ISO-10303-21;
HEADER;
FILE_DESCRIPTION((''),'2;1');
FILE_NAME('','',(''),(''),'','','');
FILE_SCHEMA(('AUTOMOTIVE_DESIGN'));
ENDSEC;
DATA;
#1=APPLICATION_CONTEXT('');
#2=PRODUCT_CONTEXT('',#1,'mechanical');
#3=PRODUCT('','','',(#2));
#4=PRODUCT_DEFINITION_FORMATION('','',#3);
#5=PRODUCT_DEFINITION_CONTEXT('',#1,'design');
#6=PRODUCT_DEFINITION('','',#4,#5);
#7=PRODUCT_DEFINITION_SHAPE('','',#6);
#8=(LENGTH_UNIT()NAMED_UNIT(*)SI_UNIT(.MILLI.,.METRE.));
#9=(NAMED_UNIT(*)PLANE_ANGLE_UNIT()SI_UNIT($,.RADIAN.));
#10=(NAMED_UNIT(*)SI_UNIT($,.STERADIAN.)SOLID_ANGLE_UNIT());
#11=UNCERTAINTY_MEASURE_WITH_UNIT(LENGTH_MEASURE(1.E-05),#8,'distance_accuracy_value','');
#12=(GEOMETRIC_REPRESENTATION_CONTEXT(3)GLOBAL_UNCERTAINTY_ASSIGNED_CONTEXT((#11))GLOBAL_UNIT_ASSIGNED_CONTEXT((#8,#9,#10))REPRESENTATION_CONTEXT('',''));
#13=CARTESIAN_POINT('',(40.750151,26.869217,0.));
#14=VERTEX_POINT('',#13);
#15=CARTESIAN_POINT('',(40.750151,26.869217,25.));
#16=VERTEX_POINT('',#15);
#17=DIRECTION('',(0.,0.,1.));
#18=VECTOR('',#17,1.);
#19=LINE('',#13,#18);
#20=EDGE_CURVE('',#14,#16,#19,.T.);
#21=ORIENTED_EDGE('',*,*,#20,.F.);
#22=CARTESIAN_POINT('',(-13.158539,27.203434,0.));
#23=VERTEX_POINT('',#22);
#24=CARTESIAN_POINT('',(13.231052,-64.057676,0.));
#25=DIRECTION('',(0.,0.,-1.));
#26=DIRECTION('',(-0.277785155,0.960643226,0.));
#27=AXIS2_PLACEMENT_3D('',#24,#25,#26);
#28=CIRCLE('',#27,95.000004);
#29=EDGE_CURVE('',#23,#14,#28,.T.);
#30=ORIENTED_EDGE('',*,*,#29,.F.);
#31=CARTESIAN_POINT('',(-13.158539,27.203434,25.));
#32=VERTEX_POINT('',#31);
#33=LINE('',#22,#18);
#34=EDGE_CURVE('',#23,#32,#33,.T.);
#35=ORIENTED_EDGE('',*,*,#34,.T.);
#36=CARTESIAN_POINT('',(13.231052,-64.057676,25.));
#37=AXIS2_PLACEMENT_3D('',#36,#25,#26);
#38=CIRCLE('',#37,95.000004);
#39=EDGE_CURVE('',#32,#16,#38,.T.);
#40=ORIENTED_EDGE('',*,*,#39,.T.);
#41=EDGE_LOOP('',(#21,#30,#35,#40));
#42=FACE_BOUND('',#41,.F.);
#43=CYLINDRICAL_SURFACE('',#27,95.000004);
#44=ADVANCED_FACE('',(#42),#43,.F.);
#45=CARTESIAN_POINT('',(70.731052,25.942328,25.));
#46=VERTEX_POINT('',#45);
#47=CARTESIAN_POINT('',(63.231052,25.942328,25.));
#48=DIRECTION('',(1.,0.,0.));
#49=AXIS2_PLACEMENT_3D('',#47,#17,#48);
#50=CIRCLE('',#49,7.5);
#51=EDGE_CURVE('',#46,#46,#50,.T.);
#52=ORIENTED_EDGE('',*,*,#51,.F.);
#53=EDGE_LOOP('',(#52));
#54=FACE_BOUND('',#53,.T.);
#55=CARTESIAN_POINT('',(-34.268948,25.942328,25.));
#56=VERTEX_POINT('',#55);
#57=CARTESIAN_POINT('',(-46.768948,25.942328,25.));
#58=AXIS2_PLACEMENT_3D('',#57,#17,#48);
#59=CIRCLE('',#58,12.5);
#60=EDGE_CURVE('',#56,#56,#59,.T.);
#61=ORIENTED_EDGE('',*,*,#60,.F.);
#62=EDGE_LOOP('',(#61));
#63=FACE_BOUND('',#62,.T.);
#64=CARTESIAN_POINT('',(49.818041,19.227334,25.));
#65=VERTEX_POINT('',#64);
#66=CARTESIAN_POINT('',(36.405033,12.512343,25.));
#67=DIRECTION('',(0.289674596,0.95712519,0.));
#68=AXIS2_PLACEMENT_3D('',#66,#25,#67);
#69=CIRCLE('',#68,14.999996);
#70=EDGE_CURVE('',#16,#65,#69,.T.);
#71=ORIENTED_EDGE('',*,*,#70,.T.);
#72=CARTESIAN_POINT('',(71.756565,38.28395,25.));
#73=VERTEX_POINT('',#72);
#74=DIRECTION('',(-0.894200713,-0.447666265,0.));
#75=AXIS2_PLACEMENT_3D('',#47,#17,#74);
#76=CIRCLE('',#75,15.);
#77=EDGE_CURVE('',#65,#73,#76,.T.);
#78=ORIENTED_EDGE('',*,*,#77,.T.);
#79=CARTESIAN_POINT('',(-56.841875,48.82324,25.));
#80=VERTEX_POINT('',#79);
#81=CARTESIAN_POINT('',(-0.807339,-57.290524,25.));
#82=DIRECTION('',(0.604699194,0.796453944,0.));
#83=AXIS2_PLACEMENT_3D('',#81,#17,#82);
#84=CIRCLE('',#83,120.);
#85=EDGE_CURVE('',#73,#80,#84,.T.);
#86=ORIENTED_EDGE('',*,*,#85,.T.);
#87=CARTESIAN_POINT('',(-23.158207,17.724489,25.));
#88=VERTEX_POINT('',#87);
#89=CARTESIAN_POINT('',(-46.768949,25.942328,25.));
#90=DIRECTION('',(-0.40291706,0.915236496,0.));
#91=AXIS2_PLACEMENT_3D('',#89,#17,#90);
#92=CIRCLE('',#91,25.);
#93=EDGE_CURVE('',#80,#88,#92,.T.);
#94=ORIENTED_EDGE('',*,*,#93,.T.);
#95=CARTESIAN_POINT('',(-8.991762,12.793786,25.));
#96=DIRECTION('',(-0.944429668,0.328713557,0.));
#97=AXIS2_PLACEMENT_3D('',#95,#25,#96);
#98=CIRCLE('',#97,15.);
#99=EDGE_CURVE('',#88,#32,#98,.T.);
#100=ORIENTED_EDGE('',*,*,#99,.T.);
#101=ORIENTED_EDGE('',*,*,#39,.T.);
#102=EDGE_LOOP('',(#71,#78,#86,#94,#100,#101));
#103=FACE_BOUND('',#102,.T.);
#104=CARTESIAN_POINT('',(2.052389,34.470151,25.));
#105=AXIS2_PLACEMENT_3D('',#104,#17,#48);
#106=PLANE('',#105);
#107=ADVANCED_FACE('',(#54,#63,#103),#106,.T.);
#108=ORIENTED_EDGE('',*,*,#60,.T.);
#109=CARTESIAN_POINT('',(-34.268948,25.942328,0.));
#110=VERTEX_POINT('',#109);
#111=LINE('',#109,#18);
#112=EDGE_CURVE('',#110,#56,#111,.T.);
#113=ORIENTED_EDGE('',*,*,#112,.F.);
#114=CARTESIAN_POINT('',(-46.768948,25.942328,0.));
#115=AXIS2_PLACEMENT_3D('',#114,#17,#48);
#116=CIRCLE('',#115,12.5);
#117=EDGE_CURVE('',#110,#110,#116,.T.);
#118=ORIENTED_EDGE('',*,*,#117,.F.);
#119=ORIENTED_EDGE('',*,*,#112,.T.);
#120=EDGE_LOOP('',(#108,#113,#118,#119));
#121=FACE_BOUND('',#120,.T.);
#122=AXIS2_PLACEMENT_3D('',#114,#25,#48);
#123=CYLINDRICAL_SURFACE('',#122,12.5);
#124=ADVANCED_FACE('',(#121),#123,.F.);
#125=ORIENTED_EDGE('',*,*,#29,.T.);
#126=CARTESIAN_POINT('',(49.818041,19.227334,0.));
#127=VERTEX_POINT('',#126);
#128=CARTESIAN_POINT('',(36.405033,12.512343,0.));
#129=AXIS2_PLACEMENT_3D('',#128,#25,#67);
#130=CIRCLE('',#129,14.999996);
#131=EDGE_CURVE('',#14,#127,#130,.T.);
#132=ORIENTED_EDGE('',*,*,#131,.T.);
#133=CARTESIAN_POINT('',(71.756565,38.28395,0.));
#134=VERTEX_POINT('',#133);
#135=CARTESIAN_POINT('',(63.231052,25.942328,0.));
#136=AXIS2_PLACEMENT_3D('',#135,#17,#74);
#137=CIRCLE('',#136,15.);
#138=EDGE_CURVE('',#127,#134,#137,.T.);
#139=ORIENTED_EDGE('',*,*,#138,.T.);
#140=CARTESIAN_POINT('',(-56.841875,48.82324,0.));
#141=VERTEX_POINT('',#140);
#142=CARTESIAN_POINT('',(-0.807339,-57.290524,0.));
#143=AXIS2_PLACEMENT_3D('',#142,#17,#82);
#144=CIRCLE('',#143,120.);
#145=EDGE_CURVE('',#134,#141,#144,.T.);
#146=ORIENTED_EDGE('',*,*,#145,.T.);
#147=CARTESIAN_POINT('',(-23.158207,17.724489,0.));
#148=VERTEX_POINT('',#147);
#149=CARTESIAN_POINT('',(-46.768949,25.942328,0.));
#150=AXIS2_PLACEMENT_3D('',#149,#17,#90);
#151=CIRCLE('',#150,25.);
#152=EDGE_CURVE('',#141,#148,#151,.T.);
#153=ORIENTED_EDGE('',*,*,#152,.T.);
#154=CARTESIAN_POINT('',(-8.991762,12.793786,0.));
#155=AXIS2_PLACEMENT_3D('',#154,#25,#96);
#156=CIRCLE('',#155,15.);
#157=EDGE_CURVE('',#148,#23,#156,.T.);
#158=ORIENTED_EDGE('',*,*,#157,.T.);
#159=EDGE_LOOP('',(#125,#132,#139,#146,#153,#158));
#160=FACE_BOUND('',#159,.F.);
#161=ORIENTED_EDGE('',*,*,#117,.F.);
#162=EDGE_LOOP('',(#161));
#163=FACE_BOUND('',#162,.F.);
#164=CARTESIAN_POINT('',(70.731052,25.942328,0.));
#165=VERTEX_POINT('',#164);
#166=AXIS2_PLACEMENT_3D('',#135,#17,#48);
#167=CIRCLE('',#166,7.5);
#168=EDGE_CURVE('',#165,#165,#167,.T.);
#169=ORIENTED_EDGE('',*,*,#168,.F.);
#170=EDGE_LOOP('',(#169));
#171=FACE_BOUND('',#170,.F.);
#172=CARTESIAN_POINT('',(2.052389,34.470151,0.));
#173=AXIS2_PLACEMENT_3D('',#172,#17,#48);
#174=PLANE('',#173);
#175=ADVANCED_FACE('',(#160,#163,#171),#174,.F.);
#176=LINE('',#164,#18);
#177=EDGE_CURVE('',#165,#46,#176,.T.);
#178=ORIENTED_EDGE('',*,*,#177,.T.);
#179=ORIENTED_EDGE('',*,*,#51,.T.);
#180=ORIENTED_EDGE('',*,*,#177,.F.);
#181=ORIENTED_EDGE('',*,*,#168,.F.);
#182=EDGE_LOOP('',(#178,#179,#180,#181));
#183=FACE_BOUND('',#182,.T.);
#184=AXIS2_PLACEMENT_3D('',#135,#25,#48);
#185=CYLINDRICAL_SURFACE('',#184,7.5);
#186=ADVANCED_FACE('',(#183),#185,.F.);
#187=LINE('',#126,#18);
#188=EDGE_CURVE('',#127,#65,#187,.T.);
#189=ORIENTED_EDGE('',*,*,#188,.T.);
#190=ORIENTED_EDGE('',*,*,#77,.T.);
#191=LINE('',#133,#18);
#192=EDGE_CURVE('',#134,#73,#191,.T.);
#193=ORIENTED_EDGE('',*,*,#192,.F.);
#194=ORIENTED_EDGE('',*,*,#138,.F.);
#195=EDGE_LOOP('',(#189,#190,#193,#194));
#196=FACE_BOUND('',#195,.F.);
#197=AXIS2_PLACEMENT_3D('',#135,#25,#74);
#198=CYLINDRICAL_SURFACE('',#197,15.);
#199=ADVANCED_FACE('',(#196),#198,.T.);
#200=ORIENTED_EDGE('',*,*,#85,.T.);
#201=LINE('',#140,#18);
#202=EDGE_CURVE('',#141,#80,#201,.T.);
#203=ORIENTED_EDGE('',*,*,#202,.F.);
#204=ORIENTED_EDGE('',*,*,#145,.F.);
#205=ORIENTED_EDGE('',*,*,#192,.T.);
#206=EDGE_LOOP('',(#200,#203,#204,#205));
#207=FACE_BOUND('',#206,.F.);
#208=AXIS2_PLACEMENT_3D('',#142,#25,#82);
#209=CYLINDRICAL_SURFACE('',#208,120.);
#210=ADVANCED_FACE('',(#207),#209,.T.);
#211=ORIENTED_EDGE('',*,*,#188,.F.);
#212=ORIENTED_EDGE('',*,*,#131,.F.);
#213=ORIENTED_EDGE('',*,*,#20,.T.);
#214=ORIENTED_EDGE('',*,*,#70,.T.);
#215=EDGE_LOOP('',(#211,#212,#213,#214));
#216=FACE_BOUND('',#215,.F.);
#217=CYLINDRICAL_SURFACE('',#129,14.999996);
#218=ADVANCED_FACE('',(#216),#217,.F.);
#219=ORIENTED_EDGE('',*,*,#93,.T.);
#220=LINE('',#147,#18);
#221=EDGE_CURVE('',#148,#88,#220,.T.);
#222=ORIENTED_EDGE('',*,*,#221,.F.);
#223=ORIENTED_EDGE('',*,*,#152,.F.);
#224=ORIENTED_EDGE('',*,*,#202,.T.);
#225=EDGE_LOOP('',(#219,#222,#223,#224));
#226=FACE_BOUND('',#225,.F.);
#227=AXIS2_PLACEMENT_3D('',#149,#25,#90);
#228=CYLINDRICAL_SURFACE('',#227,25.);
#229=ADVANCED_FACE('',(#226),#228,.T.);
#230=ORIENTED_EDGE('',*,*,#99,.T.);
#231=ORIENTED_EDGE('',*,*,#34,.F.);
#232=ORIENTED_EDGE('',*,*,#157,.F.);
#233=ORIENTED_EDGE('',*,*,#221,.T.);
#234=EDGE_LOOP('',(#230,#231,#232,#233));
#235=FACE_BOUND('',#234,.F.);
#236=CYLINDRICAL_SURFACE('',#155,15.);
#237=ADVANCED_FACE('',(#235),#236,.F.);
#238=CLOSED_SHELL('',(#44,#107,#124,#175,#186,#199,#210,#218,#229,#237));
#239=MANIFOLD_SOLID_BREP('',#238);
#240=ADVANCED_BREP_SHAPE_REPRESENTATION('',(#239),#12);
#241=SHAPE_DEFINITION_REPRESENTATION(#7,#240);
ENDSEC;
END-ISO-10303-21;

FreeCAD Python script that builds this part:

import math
import FreeCAD as App
import Part
import Sketcher
Q = App.Units.Quantity

doc = App.newDocument("Part")
params = doc.addObject("Spreadsheet::Sheet", "Params")
for row, (alias, value) in enumerate([
    ("sketch1_diameter", "25 mm"),
    ("sketch1_diameter2", "15 mm"),
    ("sketch1_radius", "120 mm"),
    ("sketch1_radius2", "25 mm"),
    ("sketch1_radius3", "15 mm"),
    ("pad1_length", "25 mm"),
], start=1):
    params.set(f"A{row}", alias)
    params.set(f"B{row}", "=" + value)
    params.setAlias(f"B{row}", alias)

body = doc.addObject("PartDesign::Body", "Body")

# Sketch on XY plane
sketch1 = body.newObject("Sketcher::SketchObject", "Sketch")
sketch1.AttachmentSupport = (doc.getObject("XY_Plane"), [""])
sketch1.MapMode = "FlatFace"
sketch1.addGeometry([
    Part.ArcOfCircle(Part.Circle(App.Vector(-1, -57, 0), App.Vector(0, 0, 1), 120), math.radians(53), math.radians(118)),  # 0
    Part.ArcOfCircle(Part.Circle(App.Vector(-47, 26, 0), App.Vector(0, 0, 1), 25), math.radians(114), math.radians(341)),  # 1
    Part.ArcOfCircle(Part.Circle(App.Vector(-9, 13, 0), App.Vector(0, 0, 1), 15), math.radians(106), math.radians(161)),  # 2
    Part.ArcOfCircle(Part.Circle(App.Vector(13, -64, 0), App.Vector(0, 0, 1), 95), math.radians(73), math.radians(106)),  # 3
    Part.ArcOfCircle(Part.Circle(App.Vector(36, 13, 0), App.Vector(0, 0, 1), 15), math.radians(27), math.radians(73)),  # 4
    Part.ArcOfCircle(Part.Circle(App.Vector(63, 26, 0), App.Vector(0, 0, 1), 15), math.radians(-153), math.radians(55)),  # 5
    Part.Circle(App.Vector(-47, 26, 0), App.Vector(0, 0, 1), 12),  # 6
    Part.Circle(App.Vector(63, 26, 0), App.Vector(0, 0, 1), 8),  # 7
], False)
sketch1.addConstraint([
    Sketcher.Constraint("Coincident", 0, 2, 1, 1),
    Sketcher.Constraint("Tangent", 1, 2, 2, 2),
    Sketcher.Constraint("Tangent", 2, 1, 3, 2),
    Sketcher.Constraint("Tangent", 3, 1, 4, 2),
    Sketcher.Constraint("Tangent", 4, 1, 5, 1),
    Sketcher.Constraint("Coincident", 5, 2, 0, 1),
    Sketcher.Constraint("Coincident", 6, 3, 1, 3),
    Sketcher.Constraint("Coincident", 7, 3, 5, 3),
    Sketcher.Constraint("Equal", 2, 5),
    Sketcher.Constraint("Horizontal", 1, 3, 5, 3),
    Sketcher.Constraint("Diameter", 6, Q("25 mm")),
    Sketcher.Constraint("Diameter", 7, Q("15 mm")),
    Sketcher.Constraint("Radius", 0, Q("120 mm")),
    Sketcher.Constraint("Radius", 1, Q("25 mm")),
    Sketcher.Constraint("Radius", 2, Q("15 mm")),
    Sketcher.Constraint("DistanceX", 1, 3, 3, 3, Q("60 mm")),
    Sketcher.Constraint("DistanceX", 3, 3, 5, 3, Q("50 mm")),
    Sketcher.Constraint("Radius", 3, Q("95.000004 mm")),
    Sketcher.Constraint("Radius", 4, Q("14.999996 mm")),
    Sketcher.Constraint("DistanceX", 3, 1, 5, 3, Q("22.480901 mm")),
    Sketcher.Constraint("DistanceX", 0, 3, -1, 1, Q("0.807339 mm")),
    Sketcher.Constraint("DistanceX", 1, 3, -1, 1, Q("46.768949 mm")),
    Sketcher.Constraint("DistanceY", -1, 1, 5, 3, Q("25.942328 mm")),
    Sketcher.Constraint("DistanceY", -1, 1, 0, 2, Q("48.82324 mm")),
])
sketch1.setExpression("Constraints[10]", "Params.sketch1_diameter")
sketch1.setExpression("Constraints[11]", "Params.sketch1_diameter2")
sketch1.setExpression("Constraints[12]", "Params.sketch1_radius")
sketch1.setExpression("Constraints[13]", "Params.sketch1_radius2")
sketch1.setExpression("Constraints[14]", "Params.sketch1_radius3")
pad1 = body.newObject("PartDesign::Pad", "Pad")
pad1.Profile = sketch1
pad1.setExpression("Length", "Params.pad1_length")

doc.recompute()
